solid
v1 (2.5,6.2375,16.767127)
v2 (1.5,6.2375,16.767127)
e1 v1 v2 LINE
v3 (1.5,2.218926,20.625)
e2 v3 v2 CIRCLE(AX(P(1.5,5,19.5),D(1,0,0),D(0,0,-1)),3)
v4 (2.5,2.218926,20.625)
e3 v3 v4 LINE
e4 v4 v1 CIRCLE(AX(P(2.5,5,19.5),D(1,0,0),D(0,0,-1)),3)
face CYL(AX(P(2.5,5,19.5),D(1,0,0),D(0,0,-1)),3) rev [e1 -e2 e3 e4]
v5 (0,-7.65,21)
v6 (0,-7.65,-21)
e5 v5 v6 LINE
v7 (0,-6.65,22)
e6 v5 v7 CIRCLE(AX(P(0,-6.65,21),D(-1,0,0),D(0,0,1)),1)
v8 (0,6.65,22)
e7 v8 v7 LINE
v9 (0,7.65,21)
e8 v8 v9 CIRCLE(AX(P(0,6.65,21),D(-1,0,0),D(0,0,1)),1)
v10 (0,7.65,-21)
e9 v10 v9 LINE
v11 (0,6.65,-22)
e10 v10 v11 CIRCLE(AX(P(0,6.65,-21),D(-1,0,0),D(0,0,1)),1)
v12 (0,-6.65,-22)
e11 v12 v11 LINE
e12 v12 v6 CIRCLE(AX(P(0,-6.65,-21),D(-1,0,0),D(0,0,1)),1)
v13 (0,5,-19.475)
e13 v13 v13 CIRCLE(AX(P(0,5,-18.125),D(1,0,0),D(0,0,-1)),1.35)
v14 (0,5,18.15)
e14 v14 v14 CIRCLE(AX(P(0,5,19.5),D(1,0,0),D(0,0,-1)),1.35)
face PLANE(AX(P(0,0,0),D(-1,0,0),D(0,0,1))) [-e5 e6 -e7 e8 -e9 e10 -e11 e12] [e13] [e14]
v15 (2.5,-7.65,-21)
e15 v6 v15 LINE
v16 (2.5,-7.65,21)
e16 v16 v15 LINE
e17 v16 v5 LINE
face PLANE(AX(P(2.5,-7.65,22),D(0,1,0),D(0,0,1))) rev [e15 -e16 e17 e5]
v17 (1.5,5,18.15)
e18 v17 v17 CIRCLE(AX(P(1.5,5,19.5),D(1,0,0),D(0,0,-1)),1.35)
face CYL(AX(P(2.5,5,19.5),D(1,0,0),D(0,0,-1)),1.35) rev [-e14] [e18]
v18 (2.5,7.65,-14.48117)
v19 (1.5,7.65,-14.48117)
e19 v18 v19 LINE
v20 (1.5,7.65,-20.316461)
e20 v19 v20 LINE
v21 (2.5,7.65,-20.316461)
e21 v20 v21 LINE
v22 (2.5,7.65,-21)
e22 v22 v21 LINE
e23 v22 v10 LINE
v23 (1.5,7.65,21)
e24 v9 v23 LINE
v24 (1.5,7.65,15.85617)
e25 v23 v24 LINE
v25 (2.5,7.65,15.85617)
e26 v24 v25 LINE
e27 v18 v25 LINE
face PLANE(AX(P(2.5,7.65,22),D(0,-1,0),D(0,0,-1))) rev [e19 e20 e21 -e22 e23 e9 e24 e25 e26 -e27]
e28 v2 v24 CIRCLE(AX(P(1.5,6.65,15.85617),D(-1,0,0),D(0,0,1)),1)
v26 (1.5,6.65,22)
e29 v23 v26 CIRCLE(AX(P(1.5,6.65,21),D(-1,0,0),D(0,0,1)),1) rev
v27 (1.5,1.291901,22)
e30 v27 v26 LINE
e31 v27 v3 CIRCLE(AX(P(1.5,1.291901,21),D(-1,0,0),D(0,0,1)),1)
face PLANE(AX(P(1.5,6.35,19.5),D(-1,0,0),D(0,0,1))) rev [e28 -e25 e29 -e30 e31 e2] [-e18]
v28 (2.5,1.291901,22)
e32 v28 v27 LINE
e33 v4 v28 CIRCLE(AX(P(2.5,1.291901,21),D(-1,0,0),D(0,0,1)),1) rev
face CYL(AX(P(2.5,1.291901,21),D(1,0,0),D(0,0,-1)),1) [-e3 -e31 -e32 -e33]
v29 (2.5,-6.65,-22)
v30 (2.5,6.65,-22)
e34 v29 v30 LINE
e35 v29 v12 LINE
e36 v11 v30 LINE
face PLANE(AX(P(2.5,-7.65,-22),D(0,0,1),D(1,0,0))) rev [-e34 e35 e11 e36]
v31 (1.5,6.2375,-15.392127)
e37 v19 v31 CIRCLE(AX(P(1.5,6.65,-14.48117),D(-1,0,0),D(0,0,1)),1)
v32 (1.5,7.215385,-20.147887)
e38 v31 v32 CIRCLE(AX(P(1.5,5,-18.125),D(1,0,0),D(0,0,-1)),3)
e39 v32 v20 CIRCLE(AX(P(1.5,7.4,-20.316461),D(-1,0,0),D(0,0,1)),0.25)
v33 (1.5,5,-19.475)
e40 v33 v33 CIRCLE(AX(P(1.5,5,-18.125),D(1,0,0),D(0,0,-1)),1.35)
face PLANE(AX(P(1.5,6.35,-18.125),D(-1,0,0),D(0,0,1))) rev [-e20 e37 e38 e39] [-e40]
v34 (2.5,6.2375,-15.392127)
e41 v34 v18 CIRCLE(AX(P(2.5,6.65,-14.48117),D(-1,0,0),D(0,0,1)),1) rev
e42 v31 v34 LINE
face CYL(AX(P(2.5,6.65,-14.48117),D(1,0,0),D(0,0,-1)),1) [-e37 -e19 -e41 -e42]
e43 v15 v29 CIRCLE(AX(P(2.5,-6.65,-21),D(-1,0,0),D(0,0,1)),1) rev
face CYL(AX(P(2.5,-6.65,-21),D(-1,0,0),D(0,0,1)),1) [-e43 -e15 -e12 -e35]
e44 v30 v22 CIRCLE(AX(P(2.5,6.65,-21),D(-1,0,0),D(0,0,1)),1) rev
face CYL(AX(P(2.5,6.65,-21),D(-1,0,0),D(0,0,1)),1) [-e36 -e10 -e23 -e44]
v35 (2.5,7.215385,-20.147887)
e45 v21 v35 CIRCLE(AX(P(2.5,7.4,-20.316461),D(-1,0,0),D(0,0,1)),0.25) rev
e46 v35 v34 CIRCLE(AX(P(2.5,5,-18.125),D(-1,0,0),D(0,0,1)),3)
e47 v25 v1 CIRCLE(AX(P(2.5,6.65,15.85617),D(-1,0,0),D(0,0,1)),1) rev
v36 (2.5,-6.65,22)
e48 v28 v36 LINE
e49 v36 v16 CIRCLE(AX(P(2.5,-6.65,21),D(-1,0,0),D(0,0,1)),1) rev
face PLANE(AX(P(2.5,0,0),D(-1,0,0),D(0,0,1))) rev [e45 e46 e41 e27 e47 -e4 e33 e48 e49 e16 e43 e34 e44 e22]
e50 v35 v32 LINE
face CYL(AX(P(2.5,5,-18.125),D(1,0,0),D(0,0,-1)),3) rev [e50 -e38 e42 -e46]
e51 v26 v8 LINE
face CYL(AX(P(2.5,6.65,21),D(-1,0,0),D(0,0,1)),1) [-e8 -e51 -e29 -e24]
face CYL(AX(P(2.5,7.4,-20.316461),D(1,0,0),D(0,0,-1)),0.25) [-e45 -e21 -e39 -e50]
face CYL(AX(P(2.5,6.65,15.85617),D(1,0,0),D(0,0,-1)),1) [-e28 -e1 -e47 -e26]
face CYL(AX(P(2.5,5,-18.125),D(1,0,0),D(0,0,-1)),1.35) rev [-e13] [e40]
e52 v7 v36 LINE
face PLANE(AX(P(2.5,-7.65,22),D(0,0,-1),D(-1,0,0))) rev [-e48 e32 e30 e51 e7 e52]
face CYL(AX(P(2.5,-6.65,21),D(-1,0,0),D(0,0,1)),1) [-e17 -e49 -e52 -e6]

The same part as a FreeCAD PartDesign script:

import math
import FreeCAD as App
import Part
import Sketcher

V = App.Vector
Q = App.Units.Quantity


def edges_at(feature, points):
    """Names of the edges that pass closest to the given points."""
    edges = feature.Shape.Edges
    near = lambda p: min(range(len(edges)), key=lambda i: edges[i].distToShape(Part.Vertex(*p))[0])
    return sorted({f"Edge{near(p) + 1}" for p in points})

doc = App.newDocument("Part")
body = doc.addObject("PartDesign::Body", "Body")

sketch1 = body.newObject("Sketcher::SketchObject", "Sketch")
sketch1.AttachmentSupport = (doc.getObject("YZ_Plane"), [""])
sketch1.MapMode = "FlatFace"
sketch1.addGeometry(Part.LineSegment(V(8, 22, 0), V(-8, 22, 0)), False)
sketch1.addGeometry(Part.LineSegment(V(-8, 22, 0), V(-8, -22, 0)), False)
sketch1.addGeometry(Part.LineSegment(V(-8, -22, 0), V(8, -22, 0)), False)
sketch1.addGeometry(Part.LineSegment(V(8, -22, 0), V(8, 22, 0)), False)
sketch1.addConstraint(Sketcher.Constraint("Coincident", 0, 2, 1, 1))
sketch1.addConstraint(Sketcher.Constraint("Coincident", 1, 2, 2, 1))
sketch1.addConstraint(Sketcher.Constraint("Coincident", 2, 2, 3, 1))
sketch1.addConstraint(Sketcher.Constraint("Coincident", 3, 2, 0, 1))
sketch1.addConstraint(Sketcher.Constraint("Horizontal", 0))
sketch1.addConstraint(Sketcher.Constraint("Vertical", 1))
sketch1.addConstraint(Sketcher.Constraint("Horizontal", 2))
sketch1.addConstraint(Sketcher.Constraint("Vertical", 3))
sketch1.addConstraint(Sketcher.Constraint("Symmetric", 0, 2, 2, 2, -1, 1))
sketch1.addConstraint(Sketcher.Constraint("DistanceY", 1, 2, 1, 1, Q("44 mm")))
sketch1.addConstraint(Sketcher.Constraint("DistanceX", 0, 2, 0, 1, Q("15.3 mm")))
pad1 = body.newObject("PartDesign::Pad", "Pad")
pad1.Profile = sketch1
pad1.Length = 2.5

sketch2 = body.newObject("Sketcher::SketchObject", "Sketch001")
sketch2.AttachmentSupport = (doc.getObject("YZ_Plane"), [""])
sketch2.MapMode = "FlatFace"
sketch2.AttachmentOffset = App.Placement(V(0, 0, 2.5), App.Rotation())
sketch2.addGeometry(Part.Circle(V(5, 19.5, 0), V(0, 0, 1), 1.4), False)
sketch2.addGeometry(Part.Circle(V(5, -18.1, 0), V(0, 0, 1), 1.4), False)
sketch2.addConstraint(Sketcher.Constraint("Equal", 0, 1))
sketch2.addConstraint(Sketcher.Constraint("Vertical", 0, 3, 1, 3))
sketch2.addConstraint(Sketcher.Constraint("Diameter", 0, Q("2.7 mm")))
sketch2.addConstraint(Sketcher.Constraint("DistanceX", -1, 1, 0, 3, Q("5 mm")))
sketch2.addConstraint(Sketcher.Constraint("DistanceY", -1, 1, 0, 3, Q("19.5 mm")))
sketch2.addConstraint(Sketcher.Constraint("DistanceY", 1, 3, -1, 1, Q("18.125 mm")))
doc.recompute()
hole = body.newObject("PartDesign::Hole", "Hole")
hole.Profile = sketch2
hole.ThreadType = "None"
hole.Diameter = 2.7
hole.DepthType = "ThroughAll"
hole.HoleCutType = "Counterbore"
hole.HoleCutDiameter = 6
hole.HoleCutDepth = 1

sketch3 = body.newObject("Sketcher::SketchObject", "Sketch002")
sketch3.AttachmentSupport = (doc.getObject("YZ_Plane"), [""])
sketch3.MapMode = "FlatFace"
sketch3.AttachmentOffset = App.Placement(V(0, 0, 2.5), App.Rotation())
sketch3.addGeometry(Part.ArcOfCircle(Part.Circle(V(5, 19.5, 0), V(0, 0, 1), 3), math.radians(28), math.radians(56)), False)
sketch3.addGeometry(Part.LineSegment(V(7.7, 20.9, 0), V(7.7, 22, 0)), False)
sketch3.addGeometry(Part.LineSegment(V(7.7, 22, 0), V(6.7, 22, 0)), False)
sketch3.addConstraint(Sketcher.Constraint("Coincident", 0, 1, 1, 1))
sketch3.addConstraint(Sketcher.Constraint("Coincident", 1, 2, 2, 1))
sketch3.addConstraint(Sketcher.Constraint("Coincident", 2, 2, 0, 2))
sketch3.addConstraint(Sketcher.Constraint("Vertical", 1))
sketch3.addConstraint(Sketcher.Constraint("Horizontal", 2))
sketch3.addConstraint(Sketcher.Constraint("Radius", 0, Q("3 mm")))
sketch3.addConstraint(Sketcher.Constraint("DistanceX", -1, 1, 0, 3, Q("5 mm")))
sketch3.addConstraint(Sketcher.Constraint("DistanceY", -1, 1, 1, 2, Q("22 mm")))
sketch3.addConstraint(Sketcher.Constraint("DistanceY", -1, 1, 0, 3, Q("19.5 mm")))
sketch3.addConstraint(Sketcher.Constraint("DistanceX", -1, 1, 0, 1, Q("7.65 mm")))
pocket1 = body.newObject("PartDesign::Pocket", "Pocket")
pocket1.Profile = sketch3
pocket1.Length = 1
doc.recompute()

fillet = body.newObject("PartDesign::Fillet", "Fillet")
fillet.Base = (pocket1, edges_at(pocket1, [
    (2, 7.65, -16.719),
    (2, 7.65, 18.094),
    (2, 3.342, 22),
    (0.75, 7.65, 22),
    (1.25, -7.65, -22),
    (1.25, -7.65, 22),
    (1.25, 7.65, -22),
]))
fillet.Radius = 1
doc.recompute()

fillet2 = body.newObject("PartDesign::Fillet", "Fillet001")
fillet2.Base = (fillet, edges_at(fillet, [(2, 7.65, -19.531)]))
fillet2.Radius = 0.25

doc.recompute()
